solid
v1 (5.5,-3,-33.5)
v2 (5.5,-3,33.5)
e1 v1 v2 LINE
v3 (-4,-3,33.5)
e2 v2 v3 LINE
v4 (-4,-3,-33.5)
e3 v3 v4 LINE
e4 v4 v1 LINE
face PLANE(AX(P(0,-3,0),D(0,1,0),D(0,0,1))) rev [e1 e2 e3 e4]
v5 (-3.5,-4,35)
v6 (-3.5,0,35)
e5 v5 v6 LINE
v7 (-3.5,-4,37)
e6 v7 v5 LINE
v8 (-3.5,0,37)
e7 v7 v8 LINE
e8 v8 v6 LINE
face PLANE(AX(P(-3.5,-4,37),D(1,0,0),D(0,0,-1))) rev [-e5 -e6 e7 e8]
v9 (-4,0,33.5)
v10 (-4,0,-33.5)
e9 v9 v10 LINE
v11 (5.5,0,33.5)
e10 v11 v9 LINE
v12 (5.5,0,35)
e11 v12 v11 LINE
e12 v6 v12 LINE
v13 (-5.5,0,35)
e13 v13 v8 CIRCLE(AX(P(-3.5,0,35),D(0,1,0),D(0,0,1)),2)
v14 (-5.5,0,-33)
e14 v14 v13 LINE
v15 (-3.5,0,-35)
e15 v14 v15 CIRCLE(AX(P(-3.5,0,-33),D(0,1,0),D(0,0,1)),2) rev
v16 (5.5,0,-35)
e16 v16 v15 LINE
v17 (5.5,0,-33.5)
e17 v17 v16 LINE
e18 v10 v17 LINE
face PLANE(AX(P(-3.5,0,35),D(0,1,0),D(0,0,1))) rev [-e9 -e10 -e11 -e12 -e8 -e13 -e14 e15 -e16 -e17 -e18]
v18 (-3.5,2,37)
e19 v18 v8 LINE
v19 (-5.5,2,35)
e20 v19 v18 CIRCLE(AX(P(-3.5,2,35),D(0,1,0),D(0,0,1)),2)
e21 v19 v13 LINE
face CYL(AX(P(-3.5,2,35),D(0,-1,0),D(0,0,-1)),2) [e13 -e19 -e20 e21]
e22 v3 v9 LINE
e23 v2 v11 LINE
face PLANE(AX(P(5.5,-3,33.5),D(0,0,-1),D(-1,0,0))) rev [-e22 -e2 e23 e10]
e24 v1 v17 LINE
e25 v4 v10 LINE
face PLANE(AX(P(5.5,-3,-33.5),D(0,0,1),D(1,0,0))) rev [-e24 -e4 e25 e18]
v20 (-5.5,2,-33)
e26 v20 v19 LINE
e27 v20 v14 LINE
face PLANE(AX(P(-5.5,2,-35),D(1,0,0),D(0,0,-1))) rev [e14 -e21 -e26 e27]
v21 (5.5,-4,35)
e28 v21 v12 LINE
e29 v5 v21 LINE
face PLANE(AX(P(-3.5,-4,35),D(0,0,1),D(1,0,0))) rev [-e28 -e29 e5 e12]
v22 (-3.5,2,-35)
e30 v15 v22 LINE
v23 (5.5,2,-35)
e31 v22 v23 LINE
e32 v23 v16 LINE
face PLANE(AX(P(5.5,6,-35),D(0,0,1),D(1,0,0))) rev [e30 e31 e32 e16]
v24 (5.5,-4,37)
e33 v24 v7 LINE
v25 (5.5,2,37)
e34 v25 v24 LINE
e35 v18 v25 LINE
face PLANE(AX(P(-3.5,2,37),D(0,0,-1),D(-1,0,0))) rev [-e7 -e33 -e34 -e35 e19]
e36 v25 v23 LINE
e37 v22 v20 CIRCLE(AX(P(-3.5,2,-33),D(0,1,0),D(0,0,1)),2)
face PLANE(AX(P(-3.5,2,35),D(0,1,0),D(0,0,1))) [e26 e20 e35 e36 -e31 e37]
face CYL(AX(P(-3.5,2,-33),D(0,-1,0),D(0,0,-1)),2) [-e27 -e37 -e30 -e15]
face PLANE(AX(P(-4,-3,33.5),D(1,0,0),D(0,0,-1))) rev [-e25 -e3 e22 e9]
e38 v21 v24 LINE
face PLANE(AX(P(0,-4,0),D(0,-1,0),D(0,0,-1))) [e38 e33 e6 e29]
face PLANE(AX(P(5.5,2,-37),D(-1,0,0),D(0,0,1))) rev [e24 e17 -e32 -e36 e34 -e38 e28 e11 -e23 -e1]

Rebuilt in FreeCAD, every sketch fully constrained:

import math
import FreeCAD as App
import Part
import Sketcher
from FreeCAD import Vector


def edges_at(feature, points):
    """Names of the edges that pass closest to the given points."""
    edges = feature.Shape.Edges
    near = lambda p: min(range(len(edges)), key=lambda i: edges[i].distToShape(Part.Vertex(*p))[0])
    return sorted({f"Edge{near(p) + 1}" for p in points})

doc = App.newDocument("Part")
body = doc.addObject("PartDesign::Body", "Body")

# Sketch on XZ plane
sketch1 = doc.addObject("Sketcher::SketchObject", "Sketch")
body.addObject(sketch1)
sketch1.AttachmentSupport = (doc.XZ_Plane, [""])
sketch1.MapMode = "FlatFace"
sketch1.addGeometry([
    Part.LineSegment(Vector(5.5, -37, 0), Vector(-3.5, -37, 0)),  # 0
    Part.ArcOfCircle(Part.Circle(Vector(-3.5, -35, 0), Vector(0, 0, 1), 2), math.radians(-180), math.radians(-90)),  # 1
    Part.LineSegment(Vector(-5.5, -35, 0), Vector(-5.5, 35, 0)),  # 2
    Part.ArcOfCircle(Part.Circle(Vector(-3.5, 35, 0), Vector(0, 0, 1), 2), math.radians(90), math.radians(180)),  # 3
    Part.LineSegment(Vector(-3.5, 37, 0), Vector(5.5, 37, 0)),  # 4
    Part.LineSegment(Vector(5.5, 37, 0), Vector(5.5, -37, 0)),  # 5
], False)
sketch1.addConstraint([
    Sketcher.Constraint("Tangent", 0, 2, 1, 2),
    Sketcher.Constraint("Tangent", 1, 1, 2, 1),
    Sketcher.Constraint("Tangent", 2, 2, 3, 2),
    Sketcher.Constraint("Tangent", 3, 1, 4, 1),
    Sketcher.Constraint("Coincident", 4, 2, 5, 1),
    Sketcher.Constraint("Coincident", 5, 2, 0, 1),
    Sketcher.Constraint("Horizontal", 0),
    Sketcher.Constraint("Vertical", 2),
    Sketcher.Constraint("Horizontal", 4),
    Sketcher.Constraint("Vertical", 5),
    Sketcher.Constraint("Equal", 1, 3),
    Sketcher.Constraint("Radius", 1, 2.0),
    Sketcher.Constraint("DistanceX", 0, 2, 0, 1, 9.0),
    Sketcher.Constraint("DistanceY", 2, 1, 2, 2, 70.0),
    Sketcher.Constraint("DistanceY", 1, 3, -1, 1, 35.0),
    Sketcher.Constraint("DistanceX", 1, 3, -1, 1, 3.5),
])
pad1 = doc.addObject("PartDesign::Pad", "Pad")
body.addObject(pad1)
pad1.Profile = sketch1
pad1.Length = 2
pad1.Reversed = True

# Sketch on XZ plane
sketch2 = doc.addObject("Sketcher::SketchObject", "Sketch001")
body.addObject(sketch2)
sketch2.AttachmentSupport = (doc.XZ_Plane, [""])
sketch2.MapMode = "FlatFace"
sketch2.addGeometry([
    Part.LineSegment(Vector(-3.5, 37, 0), Vector(-3.5, 35, 0)),  # 0
    Part.LineSegment(Vector(-3.5, 35, 0), Vector(5.5, 35, 0)),  # 1
    Part.LineSegment(Vector(5.5, 35, 0), Vector(5.5, 37, 0)),  # 2
    Part.LineSegment(Vector(5.5, 37, 0), Vector(-3.5, 37, 0)),  # 3
    Part.LineSegment(Vector(-3.5, -35, 0), Vector(-3.5, -37, 0)),  # 4
    Part.LineSegment(Vector(-3.5, -37, 0), Vector(5.5, -37, 0)),  # 5
    Part.LineSegment(Vector(5.5, -37, 0), Vector(5.5, -35, 0)),  # 6
    Part.LineSegment(Vector(5.5, -35, 0), Vector(-3.5, -35, 0)),  # 7
], False)
sketch2.addConstraint([
    Sketcher.Constraint("Coincident", 0, 2, 1, 1),
    Sketcher.Constraint("Coincident", 1, 2, 2, 1),
    Sketcher.Constraint("Coincident", 2, 2, 3, 1),
    Sketcher.Constraint("Coincident", 3, 2, 0, 1),
    Sketcher.Constraint("Coincident", 4, 2, 5, 1),
    Sketcher.Constraint("Coincident", 5, 2, 6, 1),
    Sketcher.Constraint("Coincident", 6, 2, 7, 1),
    Sketcher.Constraint("Coincident", 7, 2, 4, 1),
    Sketcher.Constraint("Vertical", 0),
    Sketcher.Constraint("Horizontal", 1),
    Sketcher.Constraint("Vertical", 2),
    Sketcher.Constraint("Horizontal", 3),
    Sketcher.Constraint("Vertical", 4),
    Sketcher.Constraint("Horizontal", 5),
    Sketcher.Constraint("Vertical", 6),
    Sketcher.Constraint("Horizontal", 7),
    Sketcher.Constraint("Symmetric", 3, 2, 4, 2, -1),
    Sketcher.Constraint("Symmetric", 1, 2, 6, 2, -1),
    Sketcher.Constraint("DistanceX", 1, 1, 1, 2, 9.0),
    Sketcher.Constraint("DistanceY", 0, 2, 0, 1, 2.0),
    Sketcher.Constraint("DistanceY", -1, 1, 0, 2, 35.0),
    Sketcher.Constraint("DistanceX", 0, 2, -1, 1, 3.5),
])
pad2 = doc.addObject("PartDesign::Pad", "Pad001")
body.addObject(pad2)
pad2.Profile = sketch2
pad2.Length = 4

# Sketch on XZ plane
sketch3 = doc.addObject("Sketcher::SketchObject", "Sketch002")
body.addObject(sketch3)
sketch3.AttachmentSupport = (doc.XZ_Plane, [""])
sketch3.MapMode = "FlatFace"
sketch3.addGeometry([
    Part.LineSegment(Vector(-4, 34, 0), Vector(-4, -34, 0)),
    Part.LineSegment(Vector(-4, -34, 0), Vector(6, -34, 0)),
    Part.LineSegment(Vector(6, -34, 0), Vector(6, 34, 0)),
    Part.LineSegment(Vector(6, 34, 0), Vector(-4, 34, 0)),
], False)
sketch3.addConstraint([
    Sketcher.Constraint("Coincident", 0, 2, 1, 1),
    Sketcher.Constraint("Coincident", 1, 2, 2, 1),
    Sketcher.Constraint("Coincident", 2, 2, 3, 1),
    Sketcher.Constraint("Coincident", 3, 2, 0, 1),
    Sketcher.Constraint("Vertical", 0),
    Sketcher.Constraint("Horizontal", 1),
    Sketcher.Constraint("Vertical", 2),
    Sketcher.Constraint("Horizontal", 3),
    Sketcher.Constraint("DistanceY", 0, 2, 0, 1, 67.0),
    Sketcher.Constraint("DistanceX", 1, 1, 1, 2, 9.5),
    Sketcher.Constraint("DistanceX", 0, 2, -1, 1, 4.0),
    Sketcher.Constraint("DistanceY", 0, 2, -1, 1, 33.5),
])
pad3 = doc.addObject("PartDesign::Pad", "Pad002")
body.addObject(pad3)
pad3.Profile = sketch3
pad3.Length = 3

# Sketch on XZ plane
sketch4 = doc.addObject("Sketcher::SketchObject", "Sketch003")
body.addObject(sketch4)
sketch4.AttachmentSupport = (doc.XZ_Plane, [""])
sketch4.MapMode = "FlatFace"
sketch4.AttachmentOffset = App.Placement(Vector(0, 0, 4), App.Rotation())
sketch4.addGeometry([
    Part.LineSegment(Vector(-10.5, -35, 0), Vector(-10.5, -37, 0)),
    Part.LineSegment(Vector(-10.5, -37, 0), Vector(5.5, -37, 0)),
    Part.LineSegment(Vector(5.5, -37, 0), Vector(5.5, -35, 0)),
    Part.LineSegment(Vector(5.5, -35, 0), Vector(-10.5, -35, 0)),
], False)
sketch4.addConstraint([
    Sketcher.Constraint("Coincident", 0, 2, 1, 1),
    Sketcher.Constraint("Coincident", 1, 2, 2, 1),
    Sketcher.Constraint("Coincident", 2, 2, 3, 1),
    Sketcher.Constraint("Coincident", 3, 2, 0, 1),
    Sketcher.Constraint("Vertical", 0),
    Sketcher.Constraint("Horizontal", 1),
    Sketcher.Constraint("Vertical", 2),
    Sketcher.Constraint("Horizontal", 3),
    Sketcher.Constraint("DistanceY", 0, 2, 0, 1, 2.0),
    Sketcher.Constraint("DistanceY", 0, 2, -1, 1, 37.0),
    Sketcher.Constraint("DistanceX", -1, 1, 1, 2, 5.5),
    Sketcher.Constraint("DistanceX", 1, 1, 1, 2, 16.004474),
])
pocket1 = doc.addObject("PartDesign::Pocket", "Pocket")
body.addObject(pocket1)
pocket1.Profile = sketch4
pocket1.Length = 10
doc.recompute()

fillet = doc.addObject("PartDesign::Fillet", "Fillet")
body.addObject(fillet)
fillet.Base = (pocket1, edges_at(pocket1, [(-5.5, 1, -35)]))
fillet.Radius = 2

doc.recompute()
